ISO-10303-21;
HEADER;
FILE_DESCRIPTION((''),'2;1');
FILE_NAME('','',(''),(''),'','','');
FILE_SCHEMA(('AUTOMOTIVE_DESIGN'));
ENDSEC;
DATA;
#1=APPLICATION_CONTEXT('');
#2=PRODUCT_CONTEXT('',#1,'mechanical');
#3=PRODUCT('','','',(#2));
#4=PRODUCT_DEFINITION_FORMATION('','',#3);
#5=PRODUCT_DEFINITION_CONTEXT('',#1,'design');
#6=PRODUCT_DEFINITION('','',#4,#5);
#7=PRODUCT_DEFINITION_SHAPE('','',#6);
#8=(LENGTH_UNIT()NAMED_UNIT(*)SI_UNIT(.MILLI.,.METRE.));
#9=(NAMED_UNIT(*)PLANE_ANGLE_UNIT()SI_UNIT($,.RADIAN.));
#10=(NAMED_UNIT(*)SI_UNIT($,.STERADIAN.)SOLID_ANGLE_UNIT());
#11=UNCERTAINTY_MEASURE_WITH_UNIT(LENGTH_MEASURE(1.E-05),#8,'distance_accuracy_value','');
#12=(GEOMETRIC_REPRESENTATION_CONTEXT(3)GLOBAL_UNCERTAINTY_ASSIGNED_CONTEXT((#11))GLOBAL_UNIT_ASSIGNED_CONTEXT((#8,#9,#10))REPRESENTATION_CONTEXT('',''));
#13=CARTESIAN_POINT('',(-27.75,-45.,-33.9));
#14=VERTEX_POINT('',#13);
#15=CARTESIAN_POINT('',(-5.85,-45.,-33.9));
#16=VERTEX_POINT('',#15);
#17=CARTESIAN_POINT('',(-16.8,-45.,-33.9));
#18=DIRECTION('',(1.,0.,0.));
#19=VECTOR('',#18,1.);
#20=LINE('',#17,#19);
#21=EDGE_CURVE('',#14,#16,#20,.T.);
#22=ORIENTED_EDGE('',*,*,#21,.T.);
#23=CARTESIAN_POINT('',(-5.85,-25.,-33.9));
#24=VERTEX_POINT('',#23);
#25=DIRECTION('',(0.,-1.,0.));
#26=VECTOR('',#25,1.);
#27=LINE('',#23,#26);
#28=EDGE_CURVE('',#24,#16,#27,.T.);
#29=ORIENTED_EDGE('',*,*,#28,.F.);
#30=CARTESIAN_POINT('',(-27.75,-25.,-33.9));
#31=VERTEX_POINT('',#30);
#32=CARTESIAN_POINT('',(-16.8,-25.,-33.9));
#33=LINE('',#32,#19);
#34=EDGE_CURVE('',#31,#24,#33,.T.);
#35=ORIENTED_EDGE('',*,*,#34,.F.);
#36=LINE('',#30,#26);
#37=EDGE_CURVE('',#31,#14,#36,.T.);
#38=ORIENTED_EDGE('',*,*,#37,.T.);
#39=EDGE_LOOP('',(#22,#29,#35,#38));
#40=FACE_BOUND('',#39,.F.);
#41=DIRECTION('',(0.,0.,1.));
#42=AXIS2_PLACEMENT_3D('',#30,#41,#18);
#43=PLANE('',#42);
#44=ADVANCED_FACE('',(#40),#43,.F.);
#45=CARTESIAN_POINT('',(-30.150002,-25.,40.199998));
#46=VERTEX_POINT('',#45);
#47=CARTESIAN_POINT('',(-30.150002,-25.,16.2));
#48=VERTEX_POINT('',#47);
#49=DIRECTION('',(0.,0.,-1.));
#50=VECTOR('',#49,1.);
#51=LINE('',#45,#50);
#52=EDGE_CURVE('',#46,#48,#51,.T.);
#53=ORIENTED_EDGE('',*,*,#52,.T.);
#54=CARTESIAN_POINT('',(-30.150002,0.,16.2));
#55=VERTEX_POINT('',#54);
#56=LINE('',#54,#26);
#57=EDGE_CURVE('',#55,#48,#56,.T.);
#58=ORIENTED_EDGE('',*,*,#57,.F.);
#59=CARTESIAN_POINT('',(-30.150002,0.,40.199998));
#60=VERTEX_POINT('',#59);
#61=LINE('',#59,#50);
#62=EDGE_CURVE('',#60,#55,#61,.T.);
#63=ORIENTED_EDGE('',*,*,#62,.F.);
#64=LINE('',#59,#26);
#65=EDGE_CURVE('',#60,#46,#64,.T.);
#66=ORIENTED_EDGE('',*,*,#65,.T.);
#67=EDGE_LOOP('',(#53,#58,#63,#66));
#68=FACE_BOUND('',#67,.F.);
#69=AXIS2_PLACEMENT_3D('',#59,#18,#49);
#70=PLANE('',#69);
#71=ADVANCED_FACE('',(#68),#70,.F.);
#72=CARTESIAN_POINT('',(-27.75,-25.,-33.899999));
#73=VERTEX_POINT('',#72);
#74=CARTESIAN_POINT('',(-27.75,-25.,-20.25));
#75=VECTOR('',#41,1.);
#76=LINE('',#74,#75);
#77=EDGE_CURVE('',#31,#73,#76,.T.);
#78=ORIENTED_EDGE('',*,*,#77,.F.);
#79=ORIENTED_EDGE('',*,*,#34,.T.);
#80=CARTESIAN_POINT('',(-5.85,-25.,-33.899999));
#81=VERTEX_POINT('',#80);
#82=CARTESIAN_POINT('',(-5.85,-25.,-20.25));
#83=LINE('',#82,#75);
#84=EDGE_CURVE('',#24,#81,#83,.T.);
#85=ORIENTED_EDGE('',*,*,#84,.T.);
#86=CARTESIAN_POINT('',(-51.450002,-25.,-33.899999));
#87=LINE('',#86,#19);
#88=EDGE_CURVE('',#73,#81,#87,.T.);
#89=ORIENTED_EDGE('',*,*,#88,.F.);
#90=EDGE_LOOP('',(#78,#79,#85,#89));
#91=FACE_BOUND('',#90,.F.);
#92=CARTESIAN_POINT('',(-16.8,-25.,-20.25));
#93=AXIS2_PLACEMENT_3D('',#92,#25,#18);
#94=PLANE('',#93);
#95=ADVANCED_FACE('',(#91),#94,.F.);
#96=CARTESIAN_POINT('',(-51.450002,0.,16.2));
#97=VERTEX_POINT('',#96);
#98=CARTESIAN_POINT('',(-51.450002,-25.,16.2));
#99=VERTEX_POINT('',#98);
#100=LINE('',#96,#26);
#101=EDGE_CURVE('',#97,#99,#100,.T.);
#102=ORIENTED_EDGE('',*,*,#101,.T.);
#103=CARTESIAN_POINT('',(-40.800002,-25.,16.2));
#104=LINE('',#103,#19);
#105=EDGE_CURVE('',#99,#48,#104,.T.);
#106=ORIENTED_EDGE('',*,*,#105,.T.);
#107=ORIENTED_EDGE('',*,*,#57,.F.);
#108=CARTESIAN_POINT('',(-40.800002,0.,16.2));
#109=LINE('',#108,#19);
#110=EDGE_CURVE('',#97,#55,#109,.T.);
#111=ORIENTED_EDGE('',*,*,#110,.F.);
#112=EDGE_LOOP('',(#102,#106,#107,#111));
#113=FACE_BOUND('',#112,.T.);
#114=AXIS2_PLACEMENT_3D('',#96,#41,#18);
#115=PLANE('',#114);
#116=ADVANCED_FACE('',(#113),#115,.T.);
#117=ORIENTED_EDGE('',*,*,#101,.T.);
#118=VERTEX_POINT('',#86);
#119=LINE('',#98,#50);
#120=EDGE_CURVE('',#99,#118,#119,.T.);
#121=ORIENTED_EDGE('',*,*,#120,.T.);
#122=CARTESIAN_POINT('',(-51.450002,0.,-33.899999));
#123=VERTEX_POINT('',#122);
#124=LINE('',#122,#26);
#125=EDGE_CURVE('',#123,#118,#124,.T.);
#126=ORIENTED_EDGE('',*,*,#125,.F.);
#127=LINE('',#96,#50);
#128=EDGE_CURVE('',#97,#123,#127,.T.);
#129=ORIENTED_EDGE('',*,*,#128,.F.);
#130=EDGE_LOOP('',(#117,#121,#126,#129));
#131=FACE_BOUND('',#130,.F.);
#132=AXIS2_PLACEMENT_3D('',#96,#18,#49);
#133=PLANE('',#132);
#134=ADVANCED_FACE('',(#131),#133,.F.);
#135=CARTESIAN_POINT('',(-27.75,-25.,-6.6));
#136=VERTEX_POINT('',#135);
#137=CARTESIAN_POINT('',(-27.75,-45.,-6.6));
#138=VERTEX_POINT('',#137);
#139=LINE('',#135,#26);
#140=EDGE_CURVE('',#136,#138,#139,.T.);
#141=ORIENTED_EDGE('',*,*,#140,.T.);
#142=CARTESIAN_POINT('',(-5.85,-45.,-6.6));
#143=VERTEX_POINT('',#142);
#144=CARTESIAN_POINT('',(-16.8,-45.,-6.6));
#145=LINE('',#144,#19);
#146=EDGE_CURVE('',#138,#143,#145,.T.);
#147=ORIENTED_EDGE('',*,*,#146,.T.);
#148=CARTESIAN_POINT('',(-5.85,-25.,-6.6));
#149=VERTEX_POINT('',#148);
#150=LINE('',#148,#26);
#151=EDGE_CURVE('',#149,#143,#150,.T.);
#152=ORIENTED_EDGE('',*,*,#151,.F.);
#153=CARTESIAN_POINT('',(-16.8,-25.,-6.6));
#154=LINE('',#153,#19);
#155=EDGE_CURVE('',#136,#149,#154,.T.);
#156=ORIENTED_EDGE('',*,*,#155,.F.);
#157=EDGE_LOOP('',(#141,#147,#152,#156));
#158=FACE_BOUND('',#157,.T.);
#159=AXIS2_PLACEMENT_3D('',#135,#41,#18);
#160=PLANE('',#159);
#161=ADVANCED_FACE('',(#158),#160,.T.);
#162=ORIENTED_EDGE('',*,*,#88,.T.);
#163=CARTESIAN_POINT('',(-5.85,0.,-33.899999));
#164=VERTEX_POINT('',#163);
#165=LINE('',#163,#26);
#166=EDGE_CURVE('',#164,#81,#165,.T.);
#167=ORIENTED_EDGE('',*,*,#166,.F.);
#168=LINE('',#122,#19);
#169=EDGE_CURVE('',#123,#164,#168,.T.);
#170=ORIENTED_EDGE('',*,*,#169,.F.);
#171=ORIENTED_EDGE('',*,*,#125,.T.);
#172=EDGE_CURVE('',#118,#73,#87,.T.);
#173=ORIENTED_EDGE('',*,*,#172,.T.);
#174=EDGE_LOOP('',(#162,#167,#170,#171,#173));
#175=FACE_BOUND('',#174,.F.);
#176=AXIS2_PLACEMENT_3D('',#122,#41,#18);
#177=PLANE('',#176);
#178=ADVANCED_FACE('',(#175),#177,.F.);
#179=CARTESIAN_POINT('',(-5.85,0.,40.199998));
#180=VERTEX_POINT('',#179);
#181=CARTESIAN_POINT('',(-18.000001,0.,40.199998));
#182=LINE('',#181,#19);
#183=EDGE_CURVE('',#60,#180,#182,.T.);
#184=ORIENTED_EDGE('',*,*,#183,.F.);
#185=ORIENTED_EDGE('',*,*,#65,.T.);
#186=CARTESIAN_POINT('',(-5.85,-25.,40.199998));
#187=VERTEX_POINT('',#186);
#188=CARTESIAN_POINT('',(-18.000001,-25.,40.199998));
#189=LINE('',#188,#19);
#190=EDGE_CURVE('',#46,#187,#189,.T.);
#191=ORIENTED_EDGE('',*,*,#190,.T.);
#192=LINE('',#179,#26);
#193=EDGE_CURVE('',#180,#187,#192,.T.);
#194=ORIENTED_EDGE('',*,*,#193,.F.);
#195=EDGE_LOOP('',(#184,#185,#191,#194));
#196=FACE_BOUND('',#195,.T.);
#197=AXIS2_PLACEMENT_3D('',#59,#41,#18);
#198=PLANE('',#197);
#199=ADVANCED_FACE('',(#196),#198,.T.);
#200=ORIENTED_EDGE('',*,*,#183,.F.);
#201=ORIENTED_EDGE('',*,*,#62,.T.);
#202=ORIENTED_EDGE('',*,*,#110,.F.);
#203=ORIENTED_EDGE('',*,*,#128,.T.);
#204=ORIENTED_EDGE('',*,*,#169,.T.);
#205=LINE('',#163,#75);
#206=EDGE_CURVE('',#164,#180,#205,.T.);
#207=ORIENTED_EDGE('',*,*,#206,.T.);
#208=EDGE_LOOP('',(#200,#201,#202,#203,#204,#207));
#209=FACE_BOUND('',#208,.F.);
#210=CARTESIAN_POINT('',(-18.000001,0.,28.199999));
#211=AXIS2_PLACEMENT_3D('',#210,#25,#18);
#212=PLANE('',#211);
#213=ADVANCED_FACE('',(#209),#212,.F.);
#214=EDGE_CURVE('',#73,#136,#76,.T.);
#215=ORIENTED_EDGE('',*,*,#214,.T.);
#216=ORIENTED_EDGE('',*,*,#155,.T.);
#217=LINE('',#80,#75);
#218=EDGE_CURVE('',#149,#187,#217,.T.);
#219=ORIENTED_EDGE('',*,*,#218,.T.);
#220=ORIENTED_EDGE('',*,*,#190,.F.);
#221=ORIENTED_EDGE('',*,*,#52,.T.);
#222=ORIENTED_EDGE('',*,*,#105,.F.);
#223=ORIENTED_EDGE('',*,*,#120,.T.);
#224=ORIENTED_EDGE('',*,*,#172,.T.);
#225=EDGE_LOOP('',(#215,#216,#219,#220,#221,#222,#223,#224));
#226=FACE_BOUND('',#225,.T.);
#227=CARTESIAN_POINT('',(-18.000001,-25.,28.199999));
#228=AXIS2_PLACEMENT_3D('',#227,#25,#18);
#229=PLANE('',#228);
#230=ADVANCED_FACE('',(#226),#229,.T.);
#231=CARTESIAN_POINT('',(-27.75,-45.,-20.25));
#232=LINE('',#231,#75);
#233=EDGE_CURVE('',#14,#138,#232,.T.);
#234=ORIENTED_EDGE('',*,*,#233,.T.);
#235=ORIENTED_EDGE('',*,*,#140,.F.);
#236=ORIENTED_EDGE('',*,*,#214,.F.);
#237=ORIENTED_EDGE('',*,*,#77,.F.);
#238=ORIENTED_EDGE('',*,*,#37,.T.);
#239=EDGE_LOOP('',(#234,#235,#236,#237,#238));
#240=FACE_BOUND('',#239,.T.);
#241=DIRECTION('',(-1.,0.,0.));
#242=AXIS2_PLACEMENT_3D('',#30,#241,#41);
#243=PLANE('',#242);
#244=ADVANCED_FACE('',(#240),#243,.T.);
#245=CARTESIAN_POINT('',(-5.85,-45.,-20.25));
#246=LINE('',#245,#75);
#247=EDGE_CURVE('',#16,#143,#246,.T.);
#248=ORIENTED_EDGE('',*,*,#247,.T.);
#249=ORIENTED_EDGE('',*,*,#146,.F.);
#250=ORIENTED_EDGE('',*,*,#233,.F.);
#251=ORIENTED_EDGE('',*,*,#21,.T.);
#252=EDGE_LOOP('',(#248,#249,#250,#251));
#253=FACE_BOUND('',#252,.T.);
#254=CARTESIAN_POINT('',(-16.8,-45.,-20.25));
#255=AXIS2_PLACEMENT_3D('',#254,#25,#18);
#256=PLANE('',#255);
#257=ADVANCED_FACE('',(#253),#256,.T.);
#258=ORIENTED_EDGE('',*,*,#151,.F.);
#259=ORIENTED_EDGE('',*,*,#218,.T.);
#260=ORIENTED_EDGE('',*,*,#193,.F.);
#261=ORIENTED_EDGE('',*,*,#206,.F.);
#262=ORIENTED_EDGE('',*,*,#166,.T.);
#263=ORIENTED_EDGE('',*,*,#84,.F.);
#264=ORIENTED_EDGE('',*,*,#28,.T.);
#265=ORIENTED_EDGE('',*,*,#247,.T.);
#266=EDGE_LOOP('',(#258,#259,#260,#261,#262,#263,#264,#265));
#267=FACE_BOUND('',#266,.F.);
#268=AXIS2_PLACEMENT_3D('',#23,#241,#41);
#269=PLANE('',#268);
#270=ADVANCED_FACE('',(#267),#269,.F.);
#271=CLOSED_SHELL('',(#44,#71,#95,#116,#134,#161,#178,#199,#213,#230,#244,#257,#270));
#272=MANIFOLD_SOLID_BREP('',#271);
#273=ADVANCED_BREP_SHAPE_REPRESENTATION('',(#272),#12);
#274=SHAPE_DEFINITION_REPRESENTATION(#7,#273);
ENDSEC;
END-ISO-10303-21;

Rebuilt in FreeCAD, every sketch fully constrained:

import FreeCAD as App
import Part
import Sketcher
from FreeCAD import Vector


def add_polygon(sketch, points):
    """Adds a closed chain of lines whose ends are joined by coincident constraints."""
    first, n = sketch.GeometryCount, len(points)
    for a, b in zip(points, points[1:] + points[:1]):
        sketch.addGeometry(Part.LineSegment(App.Vector(*a, 0), App.Vector(*b, 0)), False)
    for i in range(n):
        sketch.addConstraint(Sketcher.Constraint("Coincident", first + i, 2, first + (i + 1) % n, 1))

doc = App.newDocument("Part")
params = doc.addObject("Spreadsheet::Sheet", "Params")
for row, (alias, value) in enumerate([
    ("sketch1_height", "23.999999 mm"),
    ("sketch1_width", "24.300002 mm"),
    ("sketch1_width2", "21.3 mm"),
    ("sketch1_height2", "50.099999 mm"),
    ("pad1_length", "25 mm"),
    ("sketch2_width", "21.9 mm"),
    ("sketch2_height", "27.3 mm"),
    ("pad2_length", "20 mm"),
], start=1):
    params.set(f"A{row}", alias)
    params.set(f"B{row}", "=" + value)
    params.setAlias(f"B{row}", alias)

body = doc.addObject("PartDesign::Body", "Body")

sketch1 = body.newObject("Sketcher::SketchObject", "Sketch")
sketch1.AttachmentSupport = (doc.getObject("XZ_Plane"), [""])
sketch1.MapMode = "FlatFace"
add_polygon(sketch1, [(-6, 40), (-30, 40), (-30, 16), (-51, 16), (-51, -34), (-6, -34)])
sketch1.addConstraint(Sketcher.Constraint("Horizontal", 0))
sketch1.addConstraint(Sketcher.Constraint("Vertical", 1))
sketch1.addConstraint(Sketcher.Constraint("Horizontal", 2))
sketch1.addConstraint(Sketcher.Constraint("Vertical", 3))
sketch1.addConstraint(Sketcher.Constraint("Horizontal", 4))
sketch1.addConstraint(Sketcher.Constraint("Vertical", 5))
sketch1.addConstraint(Sketcher.Constraint("DistanceY", 1, 2, 1, 1, 23.999999))
sketch1.addConstraint(Sketcher.Constraint("DistanceX", 0, 2, 0, 1, 24.300002))
sketch1.addConstraint(Sketcher.Constraint("DistanceX", 2, 2, 2, 1, 21.3))
sketch1.addConstraint(Sketcher.Constraint("DistanceY", 3, 2, 3, 1, 50.099999))
sketch1.addConstraint(Sketcher.Constraint("DistanceY", -1, 1, 0, 2, 40.199998))
sketch1.addConstraint(Sketcher.Constraint("DistanceX", 4, 2, -1, 1, 5.85))
sketch1.setExpression("Constraints[12]", "Params.sketch1_height")
sketch1.setExpression("Constraints[13]", "Params.sketch1_width")
sketch1.setExpression("Constraints[14]", "Params.sketch1_width2")
sketch1.setExpression("Constraints[15]", "Params.sketch1_height2")
pad1 = body.newObject("PartDesign::Pad", "Pad")
pad1.Profile = sketch1
pad1.setExpression("Length", "Params.pad1_length")

sketch2 = body.newObject("Sketcher::SketchObject", "Sketch001")
sketch2.AttachmentSupport = (doc.getObject("XZ_Plane"), [""])
sketch2.MapMode = "FlatFace"
sketch2.AttachmentOffset = App.Placement(Vector(0, 0, 25), App.Rotation())
add_polygon(sketch2, [(-28, -7), (-28, -34), (-6, -34), (-6, -7)])
sketch2.addConstraint(Sketcher.Constraint("Vertical", 0))
sketch2.addConstraint(Sketcher.Constraint("Horizontal", 1))
sketch2.addConstraint(Sketcher.Constraint("Vertical", 2))
sketch2.addConstraint(Sketcher.Constraint("Horizontal", 3))
sketch2.addConstraint(Sketcher.Constraint("DistanceX", 1, 1, 1, 2, 21.9))
sketch2.addConstraint(Sketcher.Constraint("DistanceY", 0, 2, 0, 1, 27.3))
sketch2.addConstraint(Sketcher.Constraint("DistanceY", 0, 2, -1, 1, 33.9))
sketch2.addConstraint(Sketcher.Constraint("DistanceX", 0, 2, -1, 1, 27.75))
sketch2.setExpression("Constraints[8]", "Params.sketch2_width")
sketch2.setExpression("Constraints[9]", "Params.sketch2_height")
pad2 = body.newObject("PartDesign::Pad", "Pad001")
pad2.Profile = sketch2
pad2.setExpression("Length", "Params.pad2_length")

doc.recompute()
